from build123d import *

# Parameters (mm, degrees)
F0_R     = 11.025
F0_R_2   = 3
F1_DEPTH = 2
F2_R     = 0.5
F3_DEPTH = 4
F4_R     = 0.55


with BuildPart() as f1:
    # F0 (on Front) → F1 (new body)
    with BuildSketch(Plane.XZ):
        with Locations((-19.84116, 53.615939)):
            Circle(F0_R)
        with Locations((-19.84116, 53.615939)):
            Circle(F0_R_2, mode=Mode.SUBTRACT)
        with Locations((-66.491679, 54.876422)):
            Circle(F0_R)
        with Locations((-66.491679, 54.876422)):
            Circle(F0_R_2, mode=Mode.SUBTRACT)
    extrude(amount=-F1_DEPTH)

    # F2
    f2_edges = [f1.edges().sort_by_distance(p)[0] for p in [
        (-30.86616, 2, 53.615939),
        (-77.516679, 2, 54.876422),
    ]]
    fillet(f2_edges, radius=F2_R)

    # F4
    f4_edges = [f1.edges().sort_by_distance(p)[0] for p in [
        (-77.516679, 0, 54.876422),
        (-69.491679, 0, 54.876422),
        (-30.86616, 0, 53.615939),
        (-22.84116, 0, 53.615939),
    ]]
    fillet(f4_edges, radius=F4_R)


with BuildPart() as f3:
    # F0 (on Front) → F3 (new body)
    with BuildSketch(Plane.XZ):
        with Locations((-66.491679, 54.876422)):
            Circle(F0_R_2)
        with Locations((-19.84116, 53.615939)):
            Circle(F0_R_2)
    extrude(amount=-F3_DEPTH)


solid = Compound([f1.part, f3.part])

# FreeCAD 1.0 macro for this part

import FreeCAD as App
import Part
import Sketcher
from FreeCAD import Vector
Q = App.Units.Quantity


def edges_at(feature, points):
    """Names of the edges that pass closest to the given points."""
    edges = feature.Shape.Edges
    near = lambda p: min(range(len(edges)), key=lambda i: edges[i].distToShape(Part.Vertex(*p))[0])
    return sorted({f"Edge{near(p) + 1}" for p in points})

doc = App.newDocument("Part")
body = doc.addObject("PartDesign::Body", "Body")
body.AllowCompound = True

sketch1 = doc.addObject("Sketcher::SketchObject", "Sketch")
body.addObject(sketch1)
sketch1.AttachmentSupport = (doc.XZ_Plane, [""])
sketch1.MapMode = "FlatFace"
sketch1.addGeometry([
    Part.Circle(Vector(-19.8, 53.6, 0), Vector(0, 0, 1), 11),
    Part.Circle(Vector(-19.8, 53.6, 0), Vector(0, 0, 1), 3),
    Part.Circle(Vector(-66.5, 54.9, 0), Vector(0, 0, 1), 11),
    Part.Circle(Vector(-66.5, 54.9, 0), Vector(0, 0, 1), 3),
], False)
sketch1.addConstraint([
    Sketcher.Constraint("Coincident", 1, 3, 0, 3),
    Sketcher.Constraint("Coincident", 3, 3, 2, 3),
    Sketcher.Constraint("Equal", 0, 2),
    Sketcher.Constraint("Equal", 1, 3),
    Sketcher.Constraint("Diameter", 1, Q("6 mm")),
    Sketcher.Constraint("Diameter", 0, Q("22.05 mm")),
    Sketcher.Constraint("DistanceX", 0, 3, -1, 1, Q("19.84116 mm")),
    Sketcher.Constraint("DistanceY", -1, 1, 0, 3, Q("53.615939 mm")),
    Sketcher.Constraint("DistanceX", 2, 3, -1, 1, Q("66.491679 mm")),
    Sketcher.Constraint("DistanceY", -1, 1, 2, 3, Q("54.876422 mm")),
])
pad1 = doc.addObject("PartDesign::Pad", "Pad")
body.addObject(pad1)
pad1.Profile = sketch1
pad1.Length = 2
pad1.Reversed = True
doc.recompute()

fillet = doc.addObject("PartDesign::Fillet", "Fillet")
body.addObject(fillet)
fillet.Base = (pad1, edges_at(pad1, [(-30.866, 2, 53.616), (-77.517, 2, 54.876)]))
fillet.Radius = 0.5
doc.recompute()

fillet2 = doc.addObject("PartDesign::Fillet", "Fillet001")
body.addObject(fillet2)
fillet2.Base = (fillet, edges_at(fillet, [
    (-77.517, 0, 54.876),
    (-69.492, 0, 54.876),
    (-30.866, 0, 53.616),
    (-22.841, 0, 53.616),
]))
fillet2.Radius = 0.55
body2 = doc.addObject("PartDesign::Body", "Body001")
body2.AllowCompound = True

sketch2 = doc.addObject("Sketcher::SketchObject", "Sketch001")
body2.addObject(sketch2)
sketch2.AttachmentSupport = (doc.getObject("XZ_Plane001"), [""])
sketch2.MapMode = "FlatFace"
sketch2.addGeometry([
    Part.Circle(Vector(-66.5, 54.9, 0), Vector(0, 0, 1), 3),
    Part.Circle(Vector(-19.8, 53.6, 0), Vector(0, 0, 1), 3),
], False)
sketch2.addConstraint([
    Sketcher.Constraint("Equal", 0, 1),
    Sketcher.Constraint("Diameter", 0, Q("6 mm")),
    Sketcher.Constraint("DistanceX", 0, 3, -1, 1, Q("66.491679 mm")),
    Sketcher.Constraint("DistanceY", -1, 1, 0, 3, Q("54.876422 mm")),
    Sketcher.Constraint("DistanceX", 1, 3, -1, 1, Q("19.84116 mm")),
    Sketcher.Constraint("DistanceY", -1, 1, 1, 3, Q("53.615939 mm")),
])
pad2 = doc.addObject("PartDesign::Pad", "Pad001")
body2.addObject(pad2)
pad2.Profile = sketch2
pad2.Length = 4
pad2.Reversed = True

doc.recompute()
